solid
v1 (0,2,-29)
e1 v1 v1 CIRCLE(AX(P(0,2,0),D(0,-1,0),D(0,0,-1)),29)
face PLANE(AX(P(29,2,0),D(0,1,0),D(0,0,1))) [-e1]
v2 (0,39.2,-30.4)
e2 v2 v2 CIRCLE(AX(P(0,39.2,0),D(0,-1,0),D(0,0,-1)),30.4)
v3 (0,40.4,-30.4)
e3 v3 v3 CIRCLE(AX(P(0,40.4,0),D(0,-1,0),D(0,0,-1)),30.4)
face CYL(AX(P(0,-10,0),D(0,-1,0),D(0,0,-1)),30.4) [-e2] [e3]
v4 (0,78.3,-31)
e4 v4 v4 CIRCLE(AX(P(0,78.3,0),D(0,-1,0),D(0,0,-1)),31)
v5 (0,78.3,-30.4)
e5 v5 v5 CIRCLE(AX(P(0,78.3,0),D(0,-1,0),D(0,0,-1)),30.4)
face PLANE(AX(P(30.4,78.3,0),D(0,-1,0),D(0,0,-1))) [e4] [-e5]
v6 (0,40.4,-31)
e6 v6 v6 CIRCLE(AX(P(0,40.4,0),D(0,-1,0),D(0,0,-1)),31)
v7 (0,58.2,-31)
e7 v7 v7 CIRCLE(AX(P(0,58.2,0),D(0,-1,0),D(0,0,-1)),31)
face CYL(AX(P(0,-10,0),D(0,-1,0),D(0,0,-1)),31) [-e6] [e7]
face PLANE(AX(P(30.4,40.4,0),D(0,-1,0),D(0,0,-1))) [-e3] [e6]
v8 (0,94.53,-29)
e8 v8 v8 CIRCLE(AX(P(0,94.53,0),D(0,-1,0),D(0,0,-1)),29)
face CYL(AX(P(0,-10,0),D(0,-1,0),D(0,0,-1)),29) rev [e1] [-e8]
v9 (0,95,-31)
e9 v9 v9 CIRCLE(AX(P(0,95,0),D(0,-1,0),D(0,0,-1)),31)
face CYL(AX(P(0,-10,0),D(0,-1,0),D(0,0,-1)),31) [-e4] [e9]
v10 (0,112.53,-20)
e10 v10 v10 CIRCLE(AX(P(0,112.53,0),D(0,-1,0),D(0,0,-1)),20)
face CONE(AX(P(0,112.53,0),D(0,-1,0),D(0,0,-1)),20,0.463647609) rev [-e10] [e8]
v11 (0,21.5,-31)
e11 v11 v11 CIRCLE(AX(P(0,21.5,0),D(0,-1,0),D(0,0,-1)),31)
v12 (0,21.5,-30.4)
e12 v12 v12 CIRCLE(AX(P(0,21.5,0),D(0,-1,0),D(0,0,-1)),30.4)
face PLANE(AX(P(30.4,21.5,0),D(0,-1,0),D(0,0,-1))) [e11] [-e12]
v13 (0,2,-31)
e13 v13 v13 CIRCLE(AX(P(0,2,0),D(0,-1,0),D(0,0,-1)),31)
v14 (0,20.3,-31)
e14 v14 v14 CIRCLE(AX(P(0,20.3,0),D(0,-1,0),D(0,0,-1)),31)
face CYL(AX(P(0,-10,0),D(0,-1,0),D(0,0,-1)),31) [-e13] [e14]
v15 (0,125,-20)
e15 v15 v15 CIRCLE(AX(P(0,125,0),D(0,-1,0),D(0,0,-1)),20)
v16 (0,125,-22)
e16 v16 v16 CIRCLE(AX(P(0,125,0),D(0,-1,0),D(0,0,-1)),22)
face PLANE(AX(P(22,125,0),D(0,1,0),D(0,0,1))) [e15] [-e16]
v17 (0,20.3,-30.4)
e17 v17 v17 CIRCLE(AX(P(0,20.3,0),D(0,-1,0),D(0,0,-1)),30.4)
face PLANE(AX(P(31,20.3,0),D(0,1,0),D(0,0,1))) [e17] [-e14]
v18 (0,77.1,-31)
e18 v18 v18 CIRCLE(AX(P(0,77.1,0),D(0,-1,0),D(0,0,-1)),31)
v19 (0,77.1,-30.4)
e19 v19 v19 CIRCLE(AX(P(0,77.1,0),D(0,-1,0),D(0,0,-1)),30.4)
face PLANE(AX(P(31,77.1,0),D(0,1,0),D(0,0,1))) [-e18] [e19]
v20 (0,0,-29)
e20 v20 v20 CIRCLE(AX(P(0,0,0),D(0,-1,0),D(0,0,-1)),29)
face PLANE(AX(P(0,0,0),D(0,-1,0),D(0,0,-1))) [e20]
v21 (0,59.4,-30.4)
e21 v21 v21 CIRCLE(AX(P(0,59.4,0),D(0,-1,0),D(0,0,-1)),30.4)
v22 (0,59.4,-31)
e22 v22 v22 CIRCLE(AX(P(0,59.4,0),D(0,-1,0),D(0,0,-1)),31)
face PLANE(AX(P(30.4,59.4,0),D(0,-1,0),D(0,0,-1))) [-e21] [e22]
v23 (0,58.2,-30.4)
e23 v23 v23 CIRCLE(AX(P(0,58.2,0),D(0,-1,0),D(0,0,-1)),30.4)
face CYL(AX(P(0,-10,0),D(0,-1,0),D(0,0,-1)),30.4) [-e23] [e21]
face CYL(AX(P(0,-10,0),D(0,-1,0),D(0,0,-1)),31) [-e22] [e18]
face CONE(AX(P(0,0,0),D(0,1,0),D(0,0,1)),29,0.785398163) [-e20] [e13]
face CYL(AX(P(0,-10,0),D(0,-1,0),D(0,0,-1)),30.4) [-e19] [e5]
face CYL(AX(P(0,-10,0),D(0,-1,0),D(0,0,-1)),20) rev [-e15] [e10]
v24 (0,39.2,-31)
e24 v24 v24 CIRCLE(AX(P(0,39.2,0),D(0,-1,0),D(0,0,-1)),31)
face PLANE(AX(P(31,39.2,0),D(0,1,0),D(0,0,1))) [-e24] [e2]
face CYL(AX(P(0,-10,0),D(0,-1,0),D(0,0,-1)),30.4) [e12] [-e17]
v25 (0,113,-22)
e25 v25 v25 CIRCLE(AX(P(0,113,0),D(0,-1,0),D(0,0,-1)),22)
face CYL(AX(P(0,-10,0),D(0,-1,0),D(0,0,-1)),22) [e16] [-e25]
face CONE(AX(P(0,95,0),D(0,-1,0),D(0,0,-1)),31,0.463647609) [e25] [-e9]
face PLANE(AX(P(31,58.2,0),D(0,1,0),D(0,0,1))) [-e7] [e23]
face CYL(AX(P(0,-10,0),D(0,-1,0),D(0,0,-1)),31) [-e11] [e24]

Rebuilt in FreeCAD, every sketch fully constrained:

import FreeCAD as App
import Part
import Sketcher
from FreeCAD import Vector


def add_polygon(sketch, points):
    """Adds a closed chain of lines whose ends are joined by coincident constraints."""
    first, n = sketch.GeometryCount, len(points)
    for a, b in zip(points, points[1:] + points[:1]):
        sketch.addGeometry(Part.LineSegment(App.Vector(*a, 0), App.Vector(*b, 0)), False)
    for i in range(n):
        sketch.addConstraint(Sketcher.Constraint("Coincident", first + i, 2, first + (i + 1) % n, 1))

doc = App.newDocument("Part")
body = doc.addObject("PartDesign::Body", "Body")

# Sketch on XY plane
sketch1 = doc.addObject("Sketcher::SketchObject", "Sketch")
body.addObject(sketch1)
sketch1.AttachmentSupport = (doc.XY_Plane, [""])
sketch1.MapMode = "FlatFace"
add_polygon(sketch1, [(0, 0), (29, 0), (31, 2), (31, 20.3), (30.4, 20.3), (30.4, 21.5), (31, 21.5), (31, 39.2), (30.4, 39.2), (30.4, 40.4), (31, 40.4), (31, 58.2), (30.4, 58.2), (30.4, 59.4), (31, 59.4), (31, 77.1), (30.4, 77.1), (30.4, 78.3), (31, 78.3), (31, 95), (22, 113), (22, 125), (20, 125), (20, 112.5), (29, 94.5), (29, 2), (0, 2)])  # lines 0-26
sketch1.addConstraint([
    Sketcher.Constraint("Horizontal", 0),
    Sketcher.Constraint("Vertical", 2),
    Sketcher.Constraint("Horizontal", 3),
    Sketcher.Constraint("Vertical", 4),
    Sketcher.Constraint("Horizontal", 5),
    Sketcher.Constraint("Vertical", 6),
    Sketcher.Constraint("Horizontal", 7),
    Sketcher.Constraint("Vertical", 8),
    Sketcher.Constraint("Horizontal", 9),
    Sketcher.Constraint("Vertical", 10),
    Sketcher.Constraint("Horizontal", 11),
    Sketcher.Constraint("Vertical", 12),
    Sketcher.Constraint("Horizontal", 13),
    Sketcher.Constraint("Vertical", 14),
    Sketcher.Constraint("Horizontal", 15),
    Sketcher.Constraint("Vertical", 16),
    Sketcher.Constraint("Horizontal", 17),
    Sketcher.Constraint("Vertical", 18),
    Sketcher.Constraint("Vertical", 20),
    Sketcher.Constraint("Horizontal", 21),
    Sketcher.Constraint("Vertical", 22),
    Sketcher.Constraint("Vertical", 24),
    Sketcher.Constraint("Horizontal", 25),
    Sketcher.Constraint("Vertical", 26),
    Sketcher.Constraint("Coincident", 26, 2, -1, 1),
    Sketcher.Constraint("Parallel", 19, 23),
    Sketcher.Constraint("Horizontal", 1, 2, 24, 2),
    Sketcher.Constraint("Vertical", 2, 2, 5, 2),
    Sketcher.Constraint("Vertical", 4, 2, 7, 2),
    Sketcher.Constraint("Vertical", 6, 2, 9, 2),
    Sketcher.Constraint("Vertical", 8, 2, 11, 2),
    Sketcher.Constraint("Vertical", 10, 2, 13, 2),
    Sketcher.Constraint("Vertical", 12, 2, 15, 2),
    Sketcher.Constraint("Vertical", 14, 2, 17, 2),
    Sketcher.Constraint("Vertical", 0, 2, 23, 2),
    Sketcher.Constraint("Equal", 4, 8),
    Sketcher.Constraint("Equal", 8, 12),
    Sketcher.Constraint("Equal", 6, 14),
    Sketcher.Constraint("Equal", 12, 16),
    Sketcher.Constraint("Equal", 21, 26),
    Sketcher.Constraint("Equal", 19, 23),
    Sketcher.Constraint("DistanceX", 0, 1, 0, 2, 29.0),
    Sketcher.Constraint("DistanceX", 21, 2, 21, 1, 2.0),
    Sketcher.Constraint("DistanceY", 20, 1, 20, 2, 12.0),
    Sketcher.Constraint("DistanceX", 3, 2, 3, 1, 0.6),
    Sketcher.Constraint("DistanceY", 2, 1, 2, 2, 18.3),
    Sketcher.Constraint("DistanceY", 4, 1, 4, 2, 1.2),
    Sketcher.Constraint("DistanceY", 6, 1, 6, 2, 17.7),
    Sketcher.Constraint("DistanceY", 10, 1, 10, 2, 17.8),
    Sketcher.Constraint("DistanceY", 18, 1, 18, 2, 16.7),
    Sketcher.Constraint("DistanceX", -1, 1, 19, 2, 22.0),
    Sketcher.Constraint("DistanceY", -1, 1, 19, 2, 113.0),
    Sketcher.Constraint("DistanceY", 22, 2, 22, 1, 12.47),
])
revolution = doc.addObject("PartDesign::Revolution", "Revolution")
body.addObject(revolution)
revolution.Profile = sketch1
revolution.ReferenceAxis = (sketch1, ["V_Axis"])
revolution.Angle = 360

doc.recompute()
